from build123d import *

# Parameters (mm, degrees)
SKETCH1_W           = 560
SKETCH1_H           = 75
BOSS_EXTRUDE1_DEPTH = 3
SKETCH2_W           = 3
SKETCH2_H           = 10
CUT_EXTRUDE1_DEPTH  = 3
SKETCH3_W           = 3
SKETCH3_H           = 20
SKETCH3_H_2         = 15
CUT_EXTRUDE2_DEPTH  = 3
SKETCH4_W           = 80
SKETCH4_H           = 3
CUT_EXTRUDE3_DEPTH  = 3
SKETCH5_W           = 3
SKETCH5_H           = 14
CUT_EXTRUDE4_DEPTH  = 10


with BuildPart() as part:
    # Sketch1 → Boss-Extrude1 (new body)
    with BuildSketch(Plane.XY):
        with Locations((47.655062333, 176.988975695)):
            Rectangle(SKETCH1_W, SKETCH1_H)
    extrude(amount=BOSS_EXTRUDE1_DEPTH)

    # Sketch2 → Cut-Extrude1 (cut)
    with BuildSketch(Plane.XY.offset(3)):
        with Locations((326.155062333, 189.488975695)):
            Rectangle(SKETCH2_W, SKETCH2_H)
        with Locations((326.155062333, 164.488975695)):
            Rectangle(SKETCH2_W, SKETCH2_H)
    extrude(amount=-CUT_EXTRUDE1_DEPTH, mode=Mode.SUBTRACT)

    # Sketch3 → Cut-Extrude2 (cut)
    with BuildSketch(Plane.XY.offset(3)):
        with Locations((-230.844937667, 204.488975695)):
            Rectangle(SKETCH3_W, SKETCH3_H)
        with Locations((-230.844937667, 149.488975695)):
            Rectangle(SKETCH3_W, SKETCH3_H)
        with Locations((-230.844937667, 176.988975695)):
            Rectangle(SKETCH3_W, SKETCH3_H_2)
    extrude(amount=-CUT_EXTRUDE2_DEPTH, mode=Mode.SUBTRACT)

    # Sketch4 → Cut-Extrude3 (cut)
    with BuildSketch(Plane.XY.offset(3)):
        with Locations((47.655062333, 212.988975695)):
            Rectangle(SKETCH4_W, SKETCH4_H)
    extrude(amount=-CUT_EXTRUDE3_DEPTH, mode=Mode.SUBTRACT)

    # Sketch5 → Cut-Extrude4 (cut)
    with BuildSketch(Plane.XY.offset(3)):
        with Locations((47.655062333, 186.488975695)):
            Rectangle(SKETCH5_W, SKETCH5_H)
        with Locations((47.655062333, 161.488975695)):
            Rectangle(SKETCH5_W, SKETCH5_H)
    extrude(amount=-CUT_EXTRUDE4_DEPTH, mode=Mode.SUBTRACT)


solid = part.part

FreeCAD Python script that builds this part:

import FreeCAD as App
import Part
import Sketcher
from FreeCAD import Vector
Q = App.Units.Quantity


def add_polygon(sketch, points):
    """Adds a closed chain of lines whose ends are joined by coincident constraints."""
    first, n = sketch.GeometryCount, len(points)
    for a, b in zip(points, points[1:] + points[:1]):
        sketch.addGeometry(Part.LineSegment(App.Vector(*a, 0), App.Vector(*b, 0)), False)
    for i in range(n):
        sketch.addConstraint(Sketcher.Constraint("Coincident", first + i, 2, first + (i + 1) % n, 1))

doc = App.newDocument("Part")
body = doc.addObject("PartDesign::Body", "Body")

sketch1 = body.newObject("Sketcher::SketchObject", "Sketch")
sketch1.AttachmentSupport = (doc.getObject("XY_Plane"), [""])
sketch1.MapMode = "FlatFace"
add_polygon(sketch1, [(-232.344938, 214.488976), (-232.344938, 139.488976), (327.655062, 139.488976), (327.655062, 214.488976)])
sketch1.addConstraint(Sketcher.Constraint("Vertical", 0))
sketch1.addConstraint(Sketcher.Constraint("Horizontal", 1))
sketch1.addConstraint(Sketcher.Constraint("Vertical", 2))
sketch1.addConstraint(Sketcher.Constraint("Horizontal", 3))
sketch1.addConstraint(Sketcher.Constraint("DistanceX", 1, 1, 1, 2, Q("560 mm")))
sketch1.addConstraint(Sketcher.Constraint("DistanceY", 0, 2, 0, 1, Q("75 mm")))
sketch1.addConstraint(Sketcher.Constraint("DistanceX", 0, 2, -1, 1, Q("232.344938 mm")))
sketch1.addConstraint(Sketcher.Constraint("DistanceY", -1, 1, 0, 2, Q("139.488976 mm")))
pad1 = body.newObject("PartDesign::Pad", "Pad")
pad1.Profile = sketch1
pad1.Length = 3

sketch2 = body.newObject("Sketcher::SketchObject", "Sketch001")
sketch2.AttachmentSupport = (doc.getObject("XY_Plane"), [""])
sketch2.MapMode = "FlatFace"
sketch2.AttachmentOffset = App.Placement(Vector(0, 0, 3), App.Rotation())
add_polygon(sketch2, [(324.655062, 194.488976), (324.655062, 184.488976), (327.655062, 184.488976), (327.655062, 194.488976)])
add_polygon(sketch2, [(324.655062, 169.488976), (324.655062, 159.488976), (327.655062, 159.488976), (327.655062, 169.488976)])
sketch2.addConstraint(Sketcher.Constraint("Vertical", 0))
sketch2.addConstraint(Sketcher.Constraint("Horizontal", 1))
sketch2.addConstraint(Sketcher.Constraint("Vertical", 2))
sketch2.addConstraint(Sketcher.Constraint("Horizontal", 3))
sketch2.addConstraint(Sketcher.Constraint("Vertical", 4))
sketch2.addConstraint(Sketcher.Constraint("Horizontal", 5))
sketch2.addConstraint(Sketcher.Constraint("Vertical", 6))
sketch2.addConstraint(Sketcher.Constraint("Horizontal", 7))
sketch2.addConstraint(Sketcher.Constraint("Vertical", 3, 2, 4, 2))
sketch2.addConstraint(Sketcher.Constraint("Vertical", 2, 2, 5, 2))
sketch2.addConstraint(Sketcher.Constraint("Equal", 2, 4))
sketch2.addConstraint(Sketcher.Constraint("DistanceX", 1, 1, 1, 2, Q("3 mm")))
sketch2.addConstraint(Sketcher.Constraint("DistanceY", 0, 2, 0, 1, Q("10 mm")))
sketch2.addConstraint(Sketcher.Constraint("DistanceY", 4, 2, 0, 2, Q("25 mm")))
sketch2.addConstraint(Sketcher.Constraint("DistanceX", -1, 1, 0, 2, Q("324.655062 mm")))
sketch2.addConstraint(Sketcher.Constraint("DistanceY", -1, 1, 0, 2, Q("184.488976 mm")))
pocket1 = body.newObject("PartDesign::Pocket", "Pocket")
pocket1.Profile = sketch2
pocket1.Length = 3

sketch3 = body.newObject("Sketcher::SketchObject", "Sketch002")
sketch3.AttachmentSupport = (doc.getObject("XY_Plane"), [""])
sketch3.MapMode = "FlatFace"
sketch3.AttachmentOffset = App.Placement(Vector(0, 0, 3), App.Rotation())
add_polygon(sketch3, [(-232.344938, 214.488976), (-232.344938, 194.488976), (-229.344938, 194.488976), (-229.344938, 214.488976)])
add_polygon(sketch3, [(-232.344938, 159.488976), (-232.344938, 139.488976), (-229.344938, 139.488976), (-229.344938, 159.488976)])
add_polygon(sketch3, [(-232.344938, 184.488976), (-232.344938, 169.488976), (-229.344938, 169.488976), (-229.344938, 184.488976)])
sketch3.addConstraint(Sketcher.Constraint("Vertical", 0))
sketch3.addConstraint(Sketcher.Constraint("Horizontal", 1))
sketch3.addConstraint(Sketcher.Constraint("Vertical", 2))
sketch3.addConstraint(Sketcher.Constraint("Horizontal", 3))
sketch3.addConstraint(Sketcher.Constraint("Vertical", 4))
sketch3.addConstraint(Sketcher.Constraint("Horizontal", 5))
sketch3.addConstraint(Sketcher.Constraint("Vertical", 6))
sketch3.addConstraint(Sketcher.Constraint("Horizontal", 7))
sketch3.addConstraint(Sketcher.Constraint("Vertical", 8))
sketch3.addConstraint(Sketcher.Constraint("Horizontal", 9))
sketch3.addConstraint(Sketcher.Constraint("Vertical", 10))
sketch3.addConstraint(Sketcher.Constraint("Horizontal", 11))
sketch3.addConstraint(Sketcher.Constraint("Vertical", 3, 2, 4, 2))
sketch3.addConstraint(Sketcher.Constraint("Vertical", 2, 2, 5, 2))
sketch3.addConstraint(Sketcher.Constraint("Vertical", 7, 2, 8, 2))
sketch3.addConstraint(Sketcher.Constraint("Vertical", 6, 2, 9, 2))
sketch3.addConstraint(Sketcher.Constraint("Equal", 2, 4))
sketch3.addConstraint(Sketcher.Constraint("DistanceX", 1, 1, 1, 2, Q("3 mm")))
sketch3.addConstraint(Sketcher.Constraint("DistanceY", 0, 2, 0, 1, Q("20 mm")))
sketch3.addConstraint(Sketcher.Constraint("DistanceY", 8, 2, 8, 1, Q("15 mm")))
sketch3.addConstraint(Sketcher.Constraint("DistanceY", 4, 2, 0, 2, Q("55 mm")))
sketch3.addConstraint(Sketcher.Constraint("DistanceY", 7, 2, 8, 2, Q("10 mm")))
sketch3.addConstraint(Sketcher.Constraint("DistanceX", 0, 2, -1, 1, Q("232.344938 mm")))
sketch3.addConstraint(Sketcher.Constraint("DistanceY", -1, 1, 0, 2, Q("194.488976 mm")))
pocket2 = body.newObject("PartDesign::Pocket", "Pocket001")
pocket2.Profile = sketch3
pocket2.Length = 3

sketch4 = body.newObject("Sketcher::SketchObject", "Sketch003")
sketch4.AttachmentSupport = (doc.getObject("XY_Plane"), [""])
sketch4.MapMode = "FlatFace"
sketch4.AttachmentOffset = App.Placement(Vector(0, 0, 3), App.Rotation())
add_polygon(sketch4, [(7.655062, 214.488976), (7.655062, 211.488976), (87.655062, 211.488976), (87.655062, 214.488976)])
sketch4.addConstraint(Sketcher.Constraint("Vertical", 0))
sketch4.addConstraint(Sketcher.Constraint("Horizontal", 1))
sketch4.addConstraint(Sketcher.Constraint("Vertical", 2))
sketch4.addConstraint(Sketcher.Constraint("Horizontal", 3))
sketch4.addConstraint(Sketcher.Constraint("DistanceX", 1, 1, 1, 2, Q("80 mm")))
sketch4.addConstraint(Sketcher.Constraint("DistanceY", 0, 2, 0, 1, Q("3 mm")))
sketch4.addConstraint(Sketcher.Constraint("DistanceX", -1, 1, 0, 2, Q("7.655062 mm")))
sketch4.addConstraint(Sketcher.Constraint("DistanceY", -1, 1, 0, 2, Q("211.488976 mm")))
pocket3 = body.newObject("PartDesign::Pocket", "Pocket002")
pocket3.Profile = sketch4
pocket3.Length = 3

sketch5 = body.newObject("Sketcher::SketchObject", "Sketch004")
sketch5.AttachmentSupport = (doc.getObject("XY_Plane"), [""])
sketch5.MapMode = "FlatFace"
sketch5.AttachmentOffset = App.Placement(Vector(0, 0, 3), App.Rotation())
add_polygon(sketch5, [(46.155062, 193.488976), (46.155062, 179.488976), (49.155062, 179.488976), (49.155062, 193.488976)])
add_polygon(sketch5, [(46.155062, 168.488976), (46.155062, 154.488976), (49.155062, 154.488976), (49.155062, 168.488976)])
sketch5.addConstraint(Sketcher.Constraint("Vertical", 0))
sketch5.addConstraint(Sketcher.Constraint("Horizontal", 1))
sketch5.addConstraint(Sketcher.Constraint("Vertical", 2))
sketch5.addConstraint(Sketcher.Constraint("Horizontal", 3))
sketch5.addConstraint(Sketcher.Constraint("Vertical", 4))
sketch5.addConstraint(Sketcher.Constraint("Horizontal", 5))
sketch5.addConstraint(Sketcher.Constraint("Vertical", 6))
sketch5.addConstraint(Sketcher.Constraint("Horizontal", 7))
sketch5.addConstraint(Sketcher.Constraint("Vertical", 3, 2, 4, 2))
sketch5.addConstraint(Sketcher.Constraint("Vertical", 2, 2, 5, 2))
sketch5.addConstraint(Sketcher.Constraint("Equal", 2, 4))
sketch5.addConstraint(Sketcher.Constraint("DistanceX", 1, 1, 1, 2, Q("3 mm")))
sketch5.addConstraint(Sketcher.Constraint("DistanceY", 0, 2, 0, 1, Q("14 mm")))
sketch5.addConstraint(Sketcher.Constraint("DistanceY", 4, 2, 0, 2, Q("25 mm")))
sketch5.addConstraint(Sketcher.Constraint("DistanceX", -1, 1, 0, 2, Q("46.155062 mm")))
sketch5.addConstraint(Sketcher.Constraint("DistanceY", -1, 1, 0, 2, Q("179.488976 mm")))
pocket4 = body.newObject("PartDesign::Pocket", "Pocket003")
pocket4.Profile = sketch5
pocket4.Length = 10

doc.recompute()
